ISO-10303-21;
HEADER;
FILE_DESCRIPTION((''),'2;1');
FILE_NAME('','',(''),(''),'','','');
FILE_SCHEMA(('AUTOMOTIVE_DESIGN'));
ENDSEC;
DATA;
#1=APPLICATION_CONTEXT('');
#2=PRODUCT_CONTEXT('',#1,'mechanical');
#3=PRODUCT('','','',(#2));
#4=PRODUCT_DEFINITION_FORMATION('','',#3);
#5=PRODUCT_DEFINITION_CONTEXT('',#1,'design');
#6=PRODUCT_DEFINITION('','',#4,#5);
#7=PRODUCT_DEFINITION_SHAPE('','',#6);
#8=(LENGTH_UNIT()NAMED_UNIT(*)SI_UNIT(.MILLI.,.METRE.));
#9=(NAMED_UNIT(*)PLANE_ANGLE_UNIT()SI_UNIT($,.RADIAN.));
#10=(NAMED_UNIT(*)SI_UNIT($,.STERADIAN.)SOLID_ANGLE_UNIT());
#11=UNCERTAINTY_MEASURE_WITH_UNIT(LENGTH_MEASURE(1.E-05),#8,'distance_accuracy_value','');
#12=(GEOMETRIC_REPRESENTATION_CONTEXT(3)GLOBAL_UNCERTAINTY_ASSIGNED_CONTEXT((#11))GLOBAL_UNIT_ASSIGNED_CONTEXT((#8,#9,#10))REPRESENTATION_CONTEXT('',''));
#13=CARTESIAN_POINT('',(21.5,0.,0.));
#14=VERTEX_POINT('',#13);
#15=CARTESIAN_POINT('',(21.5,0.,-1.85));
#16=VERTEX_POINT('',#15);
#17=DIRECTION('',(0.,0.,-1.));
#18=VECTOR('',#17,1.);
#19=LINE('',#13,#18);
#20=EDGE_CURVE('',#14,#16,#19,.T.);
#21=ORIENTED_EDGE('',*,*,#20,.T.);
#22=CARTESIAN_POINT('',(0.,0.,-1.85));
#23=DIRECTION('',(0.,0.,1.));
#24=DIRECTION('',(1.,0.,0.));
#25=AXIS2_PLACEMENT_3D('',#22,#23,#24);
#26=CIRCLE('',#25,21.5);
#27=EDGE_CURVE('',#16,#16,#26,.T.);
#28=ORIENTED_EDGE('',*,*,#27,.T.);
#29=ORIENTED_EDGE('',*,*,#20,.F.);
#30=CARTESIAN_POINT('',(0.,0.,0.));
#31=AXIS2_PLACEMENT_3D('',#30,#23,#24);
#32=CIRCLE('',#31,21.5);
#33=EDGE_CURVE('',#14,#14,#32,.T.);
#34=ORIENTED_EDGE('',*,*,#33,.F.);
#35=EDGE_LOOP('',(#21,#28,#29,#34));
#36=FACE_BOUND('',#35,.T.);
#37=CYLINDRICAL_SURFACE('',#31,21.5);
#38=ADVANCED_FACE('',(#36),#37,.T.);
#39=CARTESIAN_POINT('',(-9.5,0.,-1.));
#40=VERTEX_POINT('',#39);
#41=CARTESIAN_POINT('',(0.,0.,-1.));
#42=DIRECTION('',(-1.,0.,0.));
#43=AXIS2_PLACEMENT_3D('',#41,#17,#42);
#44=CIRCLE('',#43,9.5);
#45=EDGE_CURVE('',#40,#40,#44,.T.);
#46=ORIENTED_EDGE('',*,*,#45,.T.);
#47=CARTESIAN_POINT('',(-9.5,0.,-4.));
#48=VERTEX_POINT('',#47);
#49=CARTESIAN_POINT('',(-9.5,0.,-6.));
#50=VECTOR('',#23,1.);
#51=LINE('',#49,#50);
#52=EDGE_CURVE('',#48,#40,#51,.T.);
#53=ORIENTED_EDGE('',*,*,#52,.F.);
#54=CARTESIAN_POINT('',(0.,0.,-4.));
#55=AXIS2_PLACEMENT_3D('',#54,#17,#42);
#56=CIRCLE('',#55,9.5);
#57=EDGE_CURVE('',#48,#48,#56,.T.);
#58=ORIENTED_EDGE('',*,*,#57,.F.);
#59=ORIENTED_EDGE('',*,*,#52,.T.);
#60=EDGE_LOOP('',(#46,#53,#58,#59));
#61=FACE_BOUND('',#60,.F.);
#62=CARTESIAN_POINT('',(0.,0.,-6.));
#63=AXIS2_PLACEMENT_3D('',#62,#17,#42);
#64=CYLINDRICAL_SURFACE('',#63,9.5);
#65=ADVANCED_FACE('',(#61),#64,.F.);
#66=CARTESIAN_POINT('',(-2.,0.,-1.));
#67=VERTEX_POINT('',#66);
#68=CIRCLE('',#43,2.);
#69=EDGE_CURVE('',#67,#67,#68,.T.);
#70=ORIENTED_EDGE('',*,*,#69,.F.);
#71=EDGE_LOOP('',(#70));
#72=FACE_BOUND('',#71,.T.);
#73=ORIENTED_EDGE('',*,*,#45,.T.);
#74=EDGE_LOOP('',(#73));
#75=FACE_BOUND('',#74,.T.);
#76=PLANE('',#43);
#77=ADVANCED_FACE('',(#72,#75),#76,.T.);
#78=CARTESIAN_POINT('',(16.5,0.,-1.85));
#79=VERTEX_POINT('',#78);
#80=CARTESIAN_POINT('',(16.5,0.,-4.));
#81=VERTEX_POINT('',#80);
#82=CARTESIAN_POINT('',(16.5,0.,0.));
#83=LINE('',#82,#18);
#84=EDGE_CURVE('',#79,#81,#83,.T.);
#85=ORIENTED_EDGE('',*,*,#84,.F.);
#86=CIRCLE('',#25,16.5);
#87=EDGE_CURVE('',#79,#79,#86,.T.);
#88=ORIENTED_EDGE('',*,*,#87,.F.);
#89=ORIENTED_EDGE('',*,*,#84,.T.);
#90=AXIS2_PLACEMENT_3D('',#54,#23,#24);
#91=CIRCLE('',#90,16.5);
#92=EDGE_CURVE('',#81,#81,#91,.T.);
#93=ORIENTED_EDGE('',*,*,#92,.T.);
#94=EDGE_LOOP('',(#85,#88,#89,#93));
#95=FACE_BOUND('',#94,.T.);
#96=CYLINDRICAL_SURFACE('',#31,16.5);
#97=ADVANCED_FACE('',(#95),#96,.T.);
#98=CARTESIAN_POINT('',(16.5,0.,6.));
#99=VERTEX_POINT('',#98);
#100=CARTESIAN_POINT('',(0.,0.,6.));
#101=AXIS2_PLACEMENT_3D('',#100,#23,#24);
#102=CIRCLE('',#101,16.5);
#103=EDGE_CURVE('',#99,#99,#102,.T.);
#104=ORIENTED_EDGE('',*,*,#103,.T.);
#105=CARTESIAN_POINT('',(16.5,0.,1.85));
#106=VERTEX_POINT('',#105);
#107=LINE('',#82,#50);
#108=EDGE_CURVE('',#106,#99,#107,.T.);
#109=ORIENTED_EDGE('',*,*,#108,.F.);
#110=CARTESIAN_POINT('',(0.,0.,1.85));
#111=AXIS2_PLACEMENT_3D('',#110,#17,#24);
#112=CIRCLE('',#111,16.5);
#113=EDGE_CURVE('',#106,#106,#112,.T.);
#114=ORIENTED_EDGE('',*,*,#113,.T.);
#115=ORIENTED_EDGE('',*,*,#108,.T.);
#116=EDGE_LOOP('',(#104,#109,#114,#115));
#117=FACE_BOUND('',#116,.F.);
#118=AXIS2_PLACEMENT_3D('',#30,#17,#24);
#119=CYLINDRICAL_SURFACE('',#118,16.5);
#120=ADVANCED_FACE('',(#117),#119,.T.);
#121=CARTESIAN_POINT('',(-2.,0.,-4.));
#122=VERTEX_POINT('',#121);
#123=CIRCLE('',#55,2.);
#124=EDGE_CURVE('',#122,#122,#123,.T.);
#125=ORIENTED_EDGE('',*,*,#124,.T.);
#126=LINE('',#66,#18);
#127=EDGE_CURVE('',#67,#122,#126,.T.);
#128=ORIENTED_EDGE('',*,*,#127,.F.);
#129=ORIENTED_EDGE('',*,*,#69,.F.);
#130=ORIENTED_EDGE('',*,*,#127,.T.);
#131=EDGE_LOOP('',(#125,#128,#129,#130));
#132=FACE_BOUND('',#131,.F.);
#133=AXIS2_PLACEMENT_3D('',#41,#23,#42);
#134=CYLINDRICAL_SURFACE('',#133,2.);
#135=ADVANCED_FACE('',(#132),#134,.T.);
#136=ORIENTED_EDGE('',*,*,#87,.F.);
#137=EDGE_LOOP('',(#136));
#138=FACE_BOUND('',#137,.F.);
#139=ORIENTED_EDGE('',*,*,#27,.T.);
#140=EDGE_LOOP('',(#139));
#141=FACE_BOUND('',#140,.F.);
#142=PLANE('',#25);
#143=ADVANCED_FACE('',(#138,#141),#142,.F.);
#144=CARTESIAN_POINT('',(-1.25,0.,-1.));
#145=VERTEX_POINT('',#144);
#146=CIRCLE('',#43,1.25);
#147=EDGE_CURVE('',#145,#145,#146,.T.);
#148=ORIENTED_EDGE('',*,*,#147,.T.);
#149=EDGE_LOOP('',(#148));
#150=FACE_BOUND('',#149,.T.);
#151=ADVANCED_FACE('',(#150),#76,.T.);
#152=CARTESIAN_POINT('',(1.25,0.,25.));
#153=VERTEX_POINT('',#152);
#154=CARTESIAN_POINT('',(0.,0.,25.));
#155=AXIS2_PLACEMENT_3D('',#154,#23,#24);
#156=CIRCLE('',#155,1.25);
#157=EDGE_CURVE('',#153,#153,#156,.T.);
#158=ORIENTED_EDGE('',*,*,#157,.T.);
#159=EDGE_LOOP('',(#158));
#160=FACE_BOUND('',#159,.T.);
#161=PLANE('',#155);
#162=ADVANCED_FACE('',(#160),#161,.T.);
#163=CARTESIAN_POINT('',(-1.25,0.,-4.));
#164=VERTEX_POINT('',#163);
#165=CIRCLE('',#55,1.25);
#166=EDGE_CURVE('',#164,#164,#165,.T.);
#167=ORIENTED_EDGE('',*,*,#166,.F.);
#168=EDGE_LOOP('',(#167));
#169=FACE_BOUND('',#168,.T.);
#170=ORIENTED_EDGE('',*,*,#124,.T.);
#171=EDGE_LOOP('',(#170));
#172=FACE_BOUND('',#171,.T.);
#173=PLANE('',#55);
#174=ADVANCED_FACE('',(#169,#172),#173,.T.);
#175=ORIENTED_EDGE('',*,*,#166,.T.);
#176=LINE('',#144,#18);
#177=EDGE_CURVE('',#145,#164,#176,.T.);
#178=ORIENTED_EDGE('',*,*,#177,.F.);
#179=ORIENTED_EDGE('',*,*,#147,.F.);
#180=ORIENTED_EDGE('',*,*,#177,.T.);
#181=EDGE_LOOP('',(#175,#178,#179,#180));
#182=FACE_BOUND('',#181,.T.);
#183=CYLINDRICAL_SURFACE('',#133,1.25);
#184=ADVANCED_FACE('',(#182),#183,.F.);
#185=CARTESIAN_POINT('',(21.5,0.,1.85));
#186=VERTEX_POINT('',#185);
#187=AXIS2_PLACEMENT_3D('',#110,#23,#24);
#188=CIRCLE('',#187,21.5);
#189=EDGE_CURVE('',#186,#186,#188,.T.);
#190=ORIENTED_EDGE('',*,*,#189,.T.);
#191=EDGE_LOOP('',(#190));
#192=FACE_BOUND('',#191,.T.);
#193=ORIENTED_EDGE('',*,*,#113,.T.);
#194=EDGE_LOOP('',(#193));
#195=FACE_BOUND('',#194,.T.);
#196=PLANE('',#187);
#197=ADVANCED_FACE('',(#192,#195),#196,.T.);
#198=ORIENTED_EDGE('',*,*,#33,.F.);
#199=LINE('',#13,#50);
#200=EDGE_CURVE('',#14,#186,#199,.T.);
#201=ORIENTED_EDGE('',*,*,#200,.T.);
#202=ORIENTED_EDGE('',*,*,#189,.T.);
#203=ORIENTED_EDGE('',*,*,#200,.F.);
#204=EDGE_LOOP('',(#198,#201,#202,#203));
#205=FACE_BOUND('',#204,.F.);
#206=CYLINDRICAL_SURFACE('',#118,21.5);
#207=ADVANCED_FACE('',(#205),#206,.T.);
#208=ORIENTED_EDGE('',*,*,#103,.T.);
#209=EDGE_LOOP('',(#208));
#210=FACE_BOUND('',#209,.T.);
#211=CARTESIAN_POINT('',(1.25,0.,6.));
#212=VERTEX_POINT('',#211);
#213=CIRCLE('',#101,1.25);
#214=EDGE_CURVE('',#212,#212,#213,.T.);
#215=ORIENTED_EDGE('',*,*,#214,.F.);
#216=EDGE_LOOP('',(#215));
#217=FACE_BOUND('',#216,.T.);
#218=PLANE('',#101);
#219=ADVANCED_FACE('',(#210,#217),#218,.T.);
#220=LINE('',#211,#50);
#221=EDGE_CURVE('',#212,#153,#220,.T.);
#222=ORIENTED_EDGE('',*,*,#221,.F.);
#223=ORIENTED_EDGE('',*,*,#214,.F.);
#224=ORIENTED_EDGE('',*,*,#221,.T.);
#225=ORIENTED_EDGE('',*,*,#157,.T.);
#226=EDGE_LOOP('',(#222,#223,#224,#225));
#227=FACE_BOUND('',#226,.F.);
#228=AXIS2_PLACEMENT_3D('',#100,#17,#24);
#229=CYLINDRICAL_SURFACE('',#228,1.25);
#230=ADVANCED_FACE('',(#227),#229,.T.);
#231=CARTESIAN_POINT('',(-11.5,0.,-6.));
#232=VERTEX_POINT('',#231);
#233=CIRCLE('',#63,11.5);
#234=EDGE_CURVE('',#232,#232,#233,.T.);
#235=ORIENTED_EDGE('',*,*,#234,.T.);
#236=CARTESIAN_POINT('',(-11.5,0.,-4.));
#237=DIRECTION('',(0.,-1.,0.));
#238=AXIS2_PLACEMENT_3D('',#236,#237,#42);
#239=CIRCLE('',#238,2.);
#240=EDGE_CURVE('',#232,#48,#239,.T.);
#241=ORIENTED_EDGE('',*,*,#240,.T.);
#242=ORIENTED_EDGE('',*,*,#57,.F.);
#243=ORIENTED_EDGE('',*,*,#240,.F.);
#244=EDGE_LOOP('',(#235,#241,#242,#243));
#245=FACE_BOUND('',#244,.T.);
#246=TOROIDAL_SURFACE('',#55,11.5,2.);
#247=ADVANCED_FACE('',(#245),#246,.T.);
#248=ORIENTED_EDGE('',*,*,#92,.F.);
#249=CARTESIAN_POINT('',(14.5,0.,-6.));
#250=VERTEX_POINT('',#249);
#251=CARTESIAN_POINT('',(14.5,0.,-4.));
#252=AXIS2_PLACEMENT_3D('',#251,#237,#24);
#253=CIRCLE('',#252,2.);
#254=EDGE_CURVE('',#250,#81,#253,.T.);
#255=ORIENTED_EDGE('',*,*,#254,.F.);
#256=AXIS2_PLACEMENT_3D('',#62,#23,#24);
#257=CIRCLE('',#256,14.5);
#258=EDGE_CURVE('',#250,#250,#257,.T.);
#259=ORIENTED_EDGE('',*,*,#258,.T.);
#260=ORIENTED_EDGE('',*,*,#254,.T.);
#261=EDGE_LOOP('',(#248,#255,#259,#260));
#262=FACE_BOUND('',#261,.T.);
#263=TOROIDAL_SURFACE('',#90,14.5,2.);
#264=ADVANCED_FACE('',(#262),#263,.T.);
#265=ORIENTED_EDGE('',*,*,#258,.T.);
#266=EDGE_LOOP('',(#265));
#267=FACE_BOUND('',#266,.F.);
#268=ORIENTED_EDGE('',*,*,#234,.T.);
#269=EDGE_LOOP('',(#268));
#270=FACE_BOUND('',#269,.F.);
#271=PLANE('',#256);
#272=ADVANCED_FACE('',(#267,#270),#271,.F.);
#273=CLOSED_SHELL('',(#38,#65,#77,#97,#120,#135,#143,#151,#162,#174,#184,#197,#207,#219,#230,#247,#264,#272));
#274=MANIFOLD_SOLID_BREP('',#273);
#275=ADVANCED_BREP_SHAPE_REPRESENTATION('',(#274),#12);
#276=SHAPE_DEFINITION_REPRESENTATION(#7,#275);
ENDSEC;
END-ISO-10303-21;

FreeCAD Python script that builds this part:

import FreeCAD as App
import Part
import Sketcher

V = App.Vector
Q = App.Units.Quantity


def edges_at(feature, points):
    """Names of the edges that pass closest to the given points."""
    edges = feature.Shape.Edges
    near = lambda p: min(range(len(edges)), key=lambda i: edges[i].distToShape(Part.Vertex(*p))[0])
    return sorted({f"Edge{near(p) + 1}" for p in points})

doc = App.newDocument("Part")
body = doc.addObject("PartDesign::Body", "Body")

# Sketch on XY plane
sketch1 = body.newObject("Sketcher::SketchObject", "Sketch")
sketch1.AttachmentSupport = (doc.getObject("XY_Plane"), [""])
sketch1.MapMode = "FlatFace"
sketch1.addGeometry(Part.Circle(V(0, 0, 0), V(0, 0, 1), 16), False)
sketch1.addConstraint([
    Sketcher.Constraint("Coincident", 0, 3, -1, 1),
    Sketcher.Constraint("Diameter", 0, Q("33 mm")),
])
pad1 = body.newObject("PartDesign::Pad", "Pad")
pad1.Profile = sketch1
pad1.Length = 12
pad1.Midplane = True

# Sketch on XY plane
sketch2 = body.newObject("Sketcher::SketchObject", "Sketch001")
sketch2.AttachmentSupport = (doc.getObject("XY_Plane"), [""])
sketch2.MapMode = "FlatFace"
sketch2.AttachmentOffset = App.Placement(V(0, 0, 6), App.Rotation())
sketch2.addGeometry(Part.Circle(V(0, 0, 0), V(0, 0, 1), 1.2), False)
sketch2.addConstraint([
    Sketcher.Constraint("Coincident", 0, 3, -1, 1),
    Sketcher.Constraint("Diameter", 0, Q("2.5 mm")),
])
pad2 = body.newObject("PartDesign::Pad", "Pad001")
pad2.Profile = sketch2
pad2.Length = 19

# Sketch on XY plane
sketch3 = body.newObject("Sketcher::SketchObject", "Sketch002")
sketch3.AttachmentSupport = (doc.getObject("XY_Plane"), [""])
sketch3.MapMode = "FlatFace"
sketch3.addGeometry(Part.Circle(V(0, 0, 0), V(0, 0, 1), 22), False)
sketch3.addConstraint([
    Sketcher.Constraint("Coincident", 0, 3, -1, 1),
    Sketcher.Constraint("Diameter", 0, Q("43 mm")),
])
pad3 = body.newObject("PartDesign::Pad", "Pad002")
pad3.Profile = sketch3
pad3.Length = 3.7
pad3.Midplane = True

# Sketch on XY plane
sketch4 = body.newObject("Sketcher::SketchObject", "Sketch003")
sketch4.AttachmentSupport = (doc.getObject("XY_Plane"), [""])
sketch4.MapMode = "FlatFace"
sketch4.AttachmentOffset = App.Placement(V(0, 0, -6), App.Rotation())
sketch4.addGeometry(Part.Circle(V(0, 0, 0), V(0, 0, 1), 10), False)
sketch4.addConstraint([
    Sketcher.Constraint("Coincident", 0, 3, -1, 1),
    Sketcher.Constraint("Diameter", 0, Q("19 mm")),
])
pocket1 = body.newObject("PartDesign::Pocket", "Pocket")
pocket1.Profile = sketch4
pocket1.Length = 5
pocket1.Reversed = True

# Sketch on XY plane
sketch5 = body.newObject("Sketcher::SketchObject", "Sketch004")
sketch5.AttachmentSupport = (doc.getObject("XY_Plane"), [""])
sketch5.MapMode = "FlatFace"
sketch5.AttachmentOffset = App.Placement(V(0, 0, -1), App.Rotation())
sketch5.addGeometry([
    Part.Circle(V(0, 0, 0), V(0, 0, 1), 2),
    Part.Circle(V(0, 0, 0), V(0, 0, 1), 1.2),
], False)
sketch5.addConstraint([
    Sketcher.Constraint("Coincident", 0, 3, -1, 1),
    Sketcher.Constraint("Coincident", 1, 3, -1, 1),
    Sketcher.Constraint("Diameter", 0, Q("4 mm")),
    Sketcher.Constraint("Diameter", 1, Q("2.5 mm")),
])
pad4 = body.newObject("PartDesign::Pad", "Pad003")
pad4.Profile = sketch5
pad4.Length = 3
pad4.Reversed = True
doc.recompute()

fillet = body.newObject("PartDesign::Fillet", "Fillet")
fillet.Base = (pad4, edges_at(pad4, [(9.5, 0, -6)]))
fillet.Radius = 2
doc.recompute()

fillet2 = body.newObject("PartDesign::Fillet", "Fillet001")
fillet2.Base = (fillet, edges_at(fillet, [(-16.5, 0, -6)]))
fillet2.Radius = 2

doc.recompute()
